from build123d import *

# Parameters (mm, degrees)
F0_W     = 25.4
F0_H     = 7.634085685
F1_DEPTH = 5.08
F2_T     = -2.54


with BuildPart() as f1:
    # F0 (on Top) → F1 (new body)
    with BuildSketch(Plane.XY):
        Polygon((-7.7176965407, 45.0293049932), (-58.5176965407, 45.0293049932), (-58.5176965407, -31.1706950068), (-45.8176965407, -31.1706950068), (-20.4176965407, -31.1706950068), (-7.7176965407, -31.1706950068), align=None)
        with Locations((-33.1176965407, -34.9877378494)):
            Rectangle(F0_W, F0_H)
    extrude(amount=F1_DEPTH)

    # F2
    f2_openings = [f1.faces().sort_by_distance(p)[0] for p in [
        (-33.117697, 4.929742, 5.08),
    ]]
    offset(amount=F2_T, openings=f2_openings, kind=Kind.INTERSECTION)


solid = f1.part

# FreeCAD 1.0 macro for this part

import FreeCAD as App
import Part
import Sketcher
Q = App.Units.Quantity


def faces_at(feature, points):
    """Names of the faces that lie closest to the given points."""
    faces = feature.Shape.Faces
    near = lambda p: min(range(len(faces)), key=lambda i: faces[i].distToShape(Part.Vertex(*p))[0])
    return sorted({f"Face{near(p) + 1}" for p in points})


def add_polygon(sketch, points):
    """Adds a closed chain of lines whose ends are joined by coincident constraints."""
    first, n = sketch.GeometryCount, len(points)
    for a, b in zip(points, points[1:] + points[:1]):
        sketch.addGeometry(Part.LineSegment(App.Vector(*a, 0), App.Vector(*b, 0)), False)
    for i in range(n):
        sketch.addConstraint(Sketcher.Constraint("Coincident", first + i, 2, first + (i + 1) % n, 1))

doc = App.newDocument("Part")
params = doc.addObject("Spreadsheet::Sheet", "Params")
for row, (alias, value) in enumerate([
    ("sketch1_width", "2 in"),
    ("sketch1_width2", "1 in"),
    ("sketch1_height", "3 in"),
    ("pad1_length", "0.2 in"),
    ("thickness_wall", "0.1 in"),
], start=1):
    params.set(f"A{row}", alias)
    params.set(f"B{row}", "=" + value)
    params.setAlias(f"B{row}", alias)

body = doc.addObject("PartDesign::Body", "Body")

sketch1 = doc.addObject("Sketcher::SketchObject", "Sketch")
body.addObject(sketch1)
sketch1.AttachmentSupport = (doc.XY_Plane, [""])
sketch1.MapMode = "FlatFace"
add_polygon(sketch1, [(-8, 45), (-59, 45), (-59, -31), (-46, -31), (-46, -39), (-20, -39), (-20, -31), (-8, -31)])
sketch1.addConstraint(Sketcher.Constraint("Horizontal", 0))
sketch1.addConstraint(Sketcher.Constraint("Vertical", 1))
sketch1.addConstraint(Sketcher.Constraint("Horizontal", 2))
sketch1.addConstraint(Sketcher.Constraint("Vertical", 3))
sketch1.addConstraint(Sketcher.Constraint("Horizontal", 4))
sketch1.addConstraint(Sketcher.Constraint("Vertical", 5))
sketch1.addConstraint(Sketcher.Constraint("Horizontal", 6))
sketch1.addConstraint(Sketcher.Constraint("Vertical", 7))
sketch1.addConstraint(Sketcher.Constraint("Horizontal", 2, 2, 5, 2))
sketch1.addConstraint(Sketcher.Constraint("Equal", 2, 6))
sketch1.addConstraint(Sketcher.Constraint("DistanceX", 0, 2, 0, 1, Q("2 in")))
sketch1.addConstraint(Sketcher.Constraint("DistanceX", 4, 1, 4, 2, Q("1 in")))
sketch1.addConstraint(Sketcher.Constraint("DistanceY", 1, 2, 1, 1, Q("3 in")))
sketch1.addConstraint(Sketcher.Constraint("DistanceY", 3, 2, 3, 1, 7.634086))
sketch1.addConstraint(Sketcher.Constraint("DistanceY", 3, 2, -1, 1, 38.804781))
sketch1.addConstraint(Sketcher.Constraint("DistanceX", 0, 2, -1, 1, 58.517697))
sketch1.setExpression("Constraints[18]", "Params.sketch1_width")
sketch1.setExpression("Constraints[19]", "Params.sketch1_width2")
sketch1.setExpression("Constraints[20]", "Params.sketch1_height")
pad1 = doc.addObject("PartDesign::Pad", "Pad")
body.addObject(pad1)
pad1.Profile = sketch1
pad1.setExpression("Length", "Params.pad1_length")
doc.recompute()

thickness = doc.addObject("PartDesign::Thickness", "Thickness")
body.addObject(thickness)
thickness.Base = (pad1, faces_at(pad1, [(-33.118, 3.112, 5.08)]))
thickness.setExpression("Value", "Params.thickness_wall")
thickness.Reversed = True
thickness.Join = "Intersection"

doc.recompute()
